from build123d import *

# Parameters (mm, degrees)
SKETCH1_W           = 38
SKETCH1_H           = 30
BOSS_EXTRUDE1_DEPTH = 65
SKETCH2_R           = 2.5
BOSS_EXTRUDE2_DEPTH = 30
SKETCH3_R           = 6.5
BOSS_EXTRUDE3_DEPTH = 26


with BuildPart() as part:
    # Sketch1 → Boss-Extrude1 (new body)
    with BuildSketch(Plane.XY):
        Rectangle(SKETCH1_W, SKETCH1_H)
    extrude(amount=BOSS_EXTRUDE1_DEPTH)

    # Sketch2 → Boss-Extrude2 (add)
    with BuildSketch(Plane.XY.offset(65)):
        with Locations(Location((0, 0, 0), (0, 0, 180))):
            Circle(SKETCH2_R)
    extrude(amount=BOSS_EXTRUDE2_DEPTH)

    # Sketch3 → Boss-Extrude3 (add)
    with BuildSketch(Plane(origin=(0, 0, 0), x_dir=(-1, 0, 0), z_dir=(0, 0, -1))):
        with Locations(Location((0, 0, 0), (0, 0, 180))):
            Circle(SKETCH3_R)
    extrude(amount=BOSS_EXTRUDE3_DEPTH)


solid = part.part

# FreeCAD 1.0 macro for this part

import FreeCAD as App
import Part
import Sketcher
from FreeCAD import Vector
Q = App.Units.Quantity

doc = App.newDocument("Part")
params = doc.addObject("Spreadsheet::Sheet", "Params")
for row, (alias, value) in enumerate([
    ("sketch1_width", "38 mm"),
    ("sketch1_height", "30 mm"),
    ("pad1_length", "65 mm"),
    ("sketch2_diameter", "5 mm"),
    ("pad2_length", "30 mm"),
    ("sketch3_diameter", "13 mm"),
    ("pad3_length", "26 mm"),
], start=1):
    params.set(f"A{row}", alias)
    params.set(f"B{row}", "=" + value)
    params.setAlias(f"B{row}", alias)

body = doc.addObject("PartDesign::Body", "Body")

sketch1 = doc.addObject("Sketcher::SketchObject", "Sketch")
body.addObject(sketch1)
sketch1.AttachmentSupport = (doc.XY_Plane, [""])
sketch1.MapMode = "FlatFace"
sketch1.addGeometry(Part.LineSegment(Vector(-19, 15, 0), Vector(-19, -15, 0)), False)
sketch1.addGeometry(Part.LineSegment(Vector(-19, -15, 0), Vector(19, -15, 0)), False)
sketch1.addGeometry(Part.LineSegment(Vector(19, -15, 0), Vector(19, 15, 0)), False)
sketch1.addGeometry(Part.LineSegment(Vector(19, 15, 0), Vector(-19, 15, 0)), False)
sketch1.addConstraint(Sketcher.Constraint("Coincident", 0, 2, 1, 1))
sketch1.addConstraint(Sketcher.Constraint("Coincident", 1, 2, 2, 1))
sketch1.addConstraint(Sketcher.Constraint("Coincident", 2, 2, 3, 1))
sketch1.addConstraint(Sketcher.Constraint("Coincident", 3, 2, 0, 1))
sketch1.addConstraint(Sketcher.Constraint("Vertical", 0))
sketch1.addConstraint(Sketcher.Constraint("Horizontal", 1))
sketch1.addConstraint(Sketcher.Constraint("Vertical", 2))
sketch1.addConstraint(Sketcher.Constraint("Horizontal", 3))
sketch1.addConstraint(Sketcher.Constraint("Symmetric", 0, 2, 2, 2, -1, 1))
sketch1.addConstraint(Sketcher.Constraint("DistanceX", 1, 1, 1, 2, Q("38 mm")))
sketch1.addConstraint(Sketcher.Constraint("DistanceY", 0, 2, 0, 1, Q("30 mm")))
sketch1.setExpression("Constraints[9]", "Params.sketch1_width")
sketch1.setExpression("Constraints[10]", "Params.sketch1_height")
pad1 = doc.addObject("PartDesign::Pad", "Pad")
body.addObject(pad1)
pad1.Profile = sketch1
pad1.setExpression("Length", "Params.pad1_length")

sketch2 = doc.addObject("Sketcher::SketchObject", "Sketch001")
body.addObject(sketch2)
sketch2.AttachmentSupport = (doc.XY_Plane, [""])
sketch2.MapMode = "FlatFace"
sketch2.AttachmentOffset = App.Placement(Vector(0, 0, 65), App.Rotation())
sketch2.addGeometry(Part.Circle(Vector(0, 0, 0), Vector(0, 0, 1), 2.5), False)
sketch2.addConstraint(Sketcher.Constraint("Coincident", 0, 3, -1, 1))
sketch2.addConstraint(Sketcher.Constraint("Diameter", 0, Q("5 mm")))
sketch2.setExpression("Constraints[1]", "Params.sketch2_diameter")
pad2 = doc.addObject("PartDesign::Pad", "Pad001")
body.addObject(pad2)
pad2.Profile = sketch2
pad2.setExpression("Length", "Params.pad2_length")

sketch3 = doc.addObject("Sketcher::SketchObject", "Sketch002")
body.addObject(sketch3)
sketch3.AttachmentSupport = (doc.XY_Plane, [""])
sketch3.MapMode = "FlatFace"
sketch3.addGeometry(Part.Circle(Vector(0, 0, 0), Vector(0, 0, 1), 6), False)
sketch3.addConstraint(Sketcher.Constraint("Coincident", 0, 3, -1, 1))
sketch3.addConstraint(Sketcher.Constraint("Diameter", 0, Q("13 mm")))
sketch3.setExpression("Constraints[1]", "Params.sketch3_diameter")
pad3 = doc.addObject("PartDesign::Pad", "Pad002")
body.addObject(pad3)
pad3.Profile = sketch3
pad3.setExpression("Length", "Params.pad3_length")
pad3.Reversed = True

doc.recompute()
